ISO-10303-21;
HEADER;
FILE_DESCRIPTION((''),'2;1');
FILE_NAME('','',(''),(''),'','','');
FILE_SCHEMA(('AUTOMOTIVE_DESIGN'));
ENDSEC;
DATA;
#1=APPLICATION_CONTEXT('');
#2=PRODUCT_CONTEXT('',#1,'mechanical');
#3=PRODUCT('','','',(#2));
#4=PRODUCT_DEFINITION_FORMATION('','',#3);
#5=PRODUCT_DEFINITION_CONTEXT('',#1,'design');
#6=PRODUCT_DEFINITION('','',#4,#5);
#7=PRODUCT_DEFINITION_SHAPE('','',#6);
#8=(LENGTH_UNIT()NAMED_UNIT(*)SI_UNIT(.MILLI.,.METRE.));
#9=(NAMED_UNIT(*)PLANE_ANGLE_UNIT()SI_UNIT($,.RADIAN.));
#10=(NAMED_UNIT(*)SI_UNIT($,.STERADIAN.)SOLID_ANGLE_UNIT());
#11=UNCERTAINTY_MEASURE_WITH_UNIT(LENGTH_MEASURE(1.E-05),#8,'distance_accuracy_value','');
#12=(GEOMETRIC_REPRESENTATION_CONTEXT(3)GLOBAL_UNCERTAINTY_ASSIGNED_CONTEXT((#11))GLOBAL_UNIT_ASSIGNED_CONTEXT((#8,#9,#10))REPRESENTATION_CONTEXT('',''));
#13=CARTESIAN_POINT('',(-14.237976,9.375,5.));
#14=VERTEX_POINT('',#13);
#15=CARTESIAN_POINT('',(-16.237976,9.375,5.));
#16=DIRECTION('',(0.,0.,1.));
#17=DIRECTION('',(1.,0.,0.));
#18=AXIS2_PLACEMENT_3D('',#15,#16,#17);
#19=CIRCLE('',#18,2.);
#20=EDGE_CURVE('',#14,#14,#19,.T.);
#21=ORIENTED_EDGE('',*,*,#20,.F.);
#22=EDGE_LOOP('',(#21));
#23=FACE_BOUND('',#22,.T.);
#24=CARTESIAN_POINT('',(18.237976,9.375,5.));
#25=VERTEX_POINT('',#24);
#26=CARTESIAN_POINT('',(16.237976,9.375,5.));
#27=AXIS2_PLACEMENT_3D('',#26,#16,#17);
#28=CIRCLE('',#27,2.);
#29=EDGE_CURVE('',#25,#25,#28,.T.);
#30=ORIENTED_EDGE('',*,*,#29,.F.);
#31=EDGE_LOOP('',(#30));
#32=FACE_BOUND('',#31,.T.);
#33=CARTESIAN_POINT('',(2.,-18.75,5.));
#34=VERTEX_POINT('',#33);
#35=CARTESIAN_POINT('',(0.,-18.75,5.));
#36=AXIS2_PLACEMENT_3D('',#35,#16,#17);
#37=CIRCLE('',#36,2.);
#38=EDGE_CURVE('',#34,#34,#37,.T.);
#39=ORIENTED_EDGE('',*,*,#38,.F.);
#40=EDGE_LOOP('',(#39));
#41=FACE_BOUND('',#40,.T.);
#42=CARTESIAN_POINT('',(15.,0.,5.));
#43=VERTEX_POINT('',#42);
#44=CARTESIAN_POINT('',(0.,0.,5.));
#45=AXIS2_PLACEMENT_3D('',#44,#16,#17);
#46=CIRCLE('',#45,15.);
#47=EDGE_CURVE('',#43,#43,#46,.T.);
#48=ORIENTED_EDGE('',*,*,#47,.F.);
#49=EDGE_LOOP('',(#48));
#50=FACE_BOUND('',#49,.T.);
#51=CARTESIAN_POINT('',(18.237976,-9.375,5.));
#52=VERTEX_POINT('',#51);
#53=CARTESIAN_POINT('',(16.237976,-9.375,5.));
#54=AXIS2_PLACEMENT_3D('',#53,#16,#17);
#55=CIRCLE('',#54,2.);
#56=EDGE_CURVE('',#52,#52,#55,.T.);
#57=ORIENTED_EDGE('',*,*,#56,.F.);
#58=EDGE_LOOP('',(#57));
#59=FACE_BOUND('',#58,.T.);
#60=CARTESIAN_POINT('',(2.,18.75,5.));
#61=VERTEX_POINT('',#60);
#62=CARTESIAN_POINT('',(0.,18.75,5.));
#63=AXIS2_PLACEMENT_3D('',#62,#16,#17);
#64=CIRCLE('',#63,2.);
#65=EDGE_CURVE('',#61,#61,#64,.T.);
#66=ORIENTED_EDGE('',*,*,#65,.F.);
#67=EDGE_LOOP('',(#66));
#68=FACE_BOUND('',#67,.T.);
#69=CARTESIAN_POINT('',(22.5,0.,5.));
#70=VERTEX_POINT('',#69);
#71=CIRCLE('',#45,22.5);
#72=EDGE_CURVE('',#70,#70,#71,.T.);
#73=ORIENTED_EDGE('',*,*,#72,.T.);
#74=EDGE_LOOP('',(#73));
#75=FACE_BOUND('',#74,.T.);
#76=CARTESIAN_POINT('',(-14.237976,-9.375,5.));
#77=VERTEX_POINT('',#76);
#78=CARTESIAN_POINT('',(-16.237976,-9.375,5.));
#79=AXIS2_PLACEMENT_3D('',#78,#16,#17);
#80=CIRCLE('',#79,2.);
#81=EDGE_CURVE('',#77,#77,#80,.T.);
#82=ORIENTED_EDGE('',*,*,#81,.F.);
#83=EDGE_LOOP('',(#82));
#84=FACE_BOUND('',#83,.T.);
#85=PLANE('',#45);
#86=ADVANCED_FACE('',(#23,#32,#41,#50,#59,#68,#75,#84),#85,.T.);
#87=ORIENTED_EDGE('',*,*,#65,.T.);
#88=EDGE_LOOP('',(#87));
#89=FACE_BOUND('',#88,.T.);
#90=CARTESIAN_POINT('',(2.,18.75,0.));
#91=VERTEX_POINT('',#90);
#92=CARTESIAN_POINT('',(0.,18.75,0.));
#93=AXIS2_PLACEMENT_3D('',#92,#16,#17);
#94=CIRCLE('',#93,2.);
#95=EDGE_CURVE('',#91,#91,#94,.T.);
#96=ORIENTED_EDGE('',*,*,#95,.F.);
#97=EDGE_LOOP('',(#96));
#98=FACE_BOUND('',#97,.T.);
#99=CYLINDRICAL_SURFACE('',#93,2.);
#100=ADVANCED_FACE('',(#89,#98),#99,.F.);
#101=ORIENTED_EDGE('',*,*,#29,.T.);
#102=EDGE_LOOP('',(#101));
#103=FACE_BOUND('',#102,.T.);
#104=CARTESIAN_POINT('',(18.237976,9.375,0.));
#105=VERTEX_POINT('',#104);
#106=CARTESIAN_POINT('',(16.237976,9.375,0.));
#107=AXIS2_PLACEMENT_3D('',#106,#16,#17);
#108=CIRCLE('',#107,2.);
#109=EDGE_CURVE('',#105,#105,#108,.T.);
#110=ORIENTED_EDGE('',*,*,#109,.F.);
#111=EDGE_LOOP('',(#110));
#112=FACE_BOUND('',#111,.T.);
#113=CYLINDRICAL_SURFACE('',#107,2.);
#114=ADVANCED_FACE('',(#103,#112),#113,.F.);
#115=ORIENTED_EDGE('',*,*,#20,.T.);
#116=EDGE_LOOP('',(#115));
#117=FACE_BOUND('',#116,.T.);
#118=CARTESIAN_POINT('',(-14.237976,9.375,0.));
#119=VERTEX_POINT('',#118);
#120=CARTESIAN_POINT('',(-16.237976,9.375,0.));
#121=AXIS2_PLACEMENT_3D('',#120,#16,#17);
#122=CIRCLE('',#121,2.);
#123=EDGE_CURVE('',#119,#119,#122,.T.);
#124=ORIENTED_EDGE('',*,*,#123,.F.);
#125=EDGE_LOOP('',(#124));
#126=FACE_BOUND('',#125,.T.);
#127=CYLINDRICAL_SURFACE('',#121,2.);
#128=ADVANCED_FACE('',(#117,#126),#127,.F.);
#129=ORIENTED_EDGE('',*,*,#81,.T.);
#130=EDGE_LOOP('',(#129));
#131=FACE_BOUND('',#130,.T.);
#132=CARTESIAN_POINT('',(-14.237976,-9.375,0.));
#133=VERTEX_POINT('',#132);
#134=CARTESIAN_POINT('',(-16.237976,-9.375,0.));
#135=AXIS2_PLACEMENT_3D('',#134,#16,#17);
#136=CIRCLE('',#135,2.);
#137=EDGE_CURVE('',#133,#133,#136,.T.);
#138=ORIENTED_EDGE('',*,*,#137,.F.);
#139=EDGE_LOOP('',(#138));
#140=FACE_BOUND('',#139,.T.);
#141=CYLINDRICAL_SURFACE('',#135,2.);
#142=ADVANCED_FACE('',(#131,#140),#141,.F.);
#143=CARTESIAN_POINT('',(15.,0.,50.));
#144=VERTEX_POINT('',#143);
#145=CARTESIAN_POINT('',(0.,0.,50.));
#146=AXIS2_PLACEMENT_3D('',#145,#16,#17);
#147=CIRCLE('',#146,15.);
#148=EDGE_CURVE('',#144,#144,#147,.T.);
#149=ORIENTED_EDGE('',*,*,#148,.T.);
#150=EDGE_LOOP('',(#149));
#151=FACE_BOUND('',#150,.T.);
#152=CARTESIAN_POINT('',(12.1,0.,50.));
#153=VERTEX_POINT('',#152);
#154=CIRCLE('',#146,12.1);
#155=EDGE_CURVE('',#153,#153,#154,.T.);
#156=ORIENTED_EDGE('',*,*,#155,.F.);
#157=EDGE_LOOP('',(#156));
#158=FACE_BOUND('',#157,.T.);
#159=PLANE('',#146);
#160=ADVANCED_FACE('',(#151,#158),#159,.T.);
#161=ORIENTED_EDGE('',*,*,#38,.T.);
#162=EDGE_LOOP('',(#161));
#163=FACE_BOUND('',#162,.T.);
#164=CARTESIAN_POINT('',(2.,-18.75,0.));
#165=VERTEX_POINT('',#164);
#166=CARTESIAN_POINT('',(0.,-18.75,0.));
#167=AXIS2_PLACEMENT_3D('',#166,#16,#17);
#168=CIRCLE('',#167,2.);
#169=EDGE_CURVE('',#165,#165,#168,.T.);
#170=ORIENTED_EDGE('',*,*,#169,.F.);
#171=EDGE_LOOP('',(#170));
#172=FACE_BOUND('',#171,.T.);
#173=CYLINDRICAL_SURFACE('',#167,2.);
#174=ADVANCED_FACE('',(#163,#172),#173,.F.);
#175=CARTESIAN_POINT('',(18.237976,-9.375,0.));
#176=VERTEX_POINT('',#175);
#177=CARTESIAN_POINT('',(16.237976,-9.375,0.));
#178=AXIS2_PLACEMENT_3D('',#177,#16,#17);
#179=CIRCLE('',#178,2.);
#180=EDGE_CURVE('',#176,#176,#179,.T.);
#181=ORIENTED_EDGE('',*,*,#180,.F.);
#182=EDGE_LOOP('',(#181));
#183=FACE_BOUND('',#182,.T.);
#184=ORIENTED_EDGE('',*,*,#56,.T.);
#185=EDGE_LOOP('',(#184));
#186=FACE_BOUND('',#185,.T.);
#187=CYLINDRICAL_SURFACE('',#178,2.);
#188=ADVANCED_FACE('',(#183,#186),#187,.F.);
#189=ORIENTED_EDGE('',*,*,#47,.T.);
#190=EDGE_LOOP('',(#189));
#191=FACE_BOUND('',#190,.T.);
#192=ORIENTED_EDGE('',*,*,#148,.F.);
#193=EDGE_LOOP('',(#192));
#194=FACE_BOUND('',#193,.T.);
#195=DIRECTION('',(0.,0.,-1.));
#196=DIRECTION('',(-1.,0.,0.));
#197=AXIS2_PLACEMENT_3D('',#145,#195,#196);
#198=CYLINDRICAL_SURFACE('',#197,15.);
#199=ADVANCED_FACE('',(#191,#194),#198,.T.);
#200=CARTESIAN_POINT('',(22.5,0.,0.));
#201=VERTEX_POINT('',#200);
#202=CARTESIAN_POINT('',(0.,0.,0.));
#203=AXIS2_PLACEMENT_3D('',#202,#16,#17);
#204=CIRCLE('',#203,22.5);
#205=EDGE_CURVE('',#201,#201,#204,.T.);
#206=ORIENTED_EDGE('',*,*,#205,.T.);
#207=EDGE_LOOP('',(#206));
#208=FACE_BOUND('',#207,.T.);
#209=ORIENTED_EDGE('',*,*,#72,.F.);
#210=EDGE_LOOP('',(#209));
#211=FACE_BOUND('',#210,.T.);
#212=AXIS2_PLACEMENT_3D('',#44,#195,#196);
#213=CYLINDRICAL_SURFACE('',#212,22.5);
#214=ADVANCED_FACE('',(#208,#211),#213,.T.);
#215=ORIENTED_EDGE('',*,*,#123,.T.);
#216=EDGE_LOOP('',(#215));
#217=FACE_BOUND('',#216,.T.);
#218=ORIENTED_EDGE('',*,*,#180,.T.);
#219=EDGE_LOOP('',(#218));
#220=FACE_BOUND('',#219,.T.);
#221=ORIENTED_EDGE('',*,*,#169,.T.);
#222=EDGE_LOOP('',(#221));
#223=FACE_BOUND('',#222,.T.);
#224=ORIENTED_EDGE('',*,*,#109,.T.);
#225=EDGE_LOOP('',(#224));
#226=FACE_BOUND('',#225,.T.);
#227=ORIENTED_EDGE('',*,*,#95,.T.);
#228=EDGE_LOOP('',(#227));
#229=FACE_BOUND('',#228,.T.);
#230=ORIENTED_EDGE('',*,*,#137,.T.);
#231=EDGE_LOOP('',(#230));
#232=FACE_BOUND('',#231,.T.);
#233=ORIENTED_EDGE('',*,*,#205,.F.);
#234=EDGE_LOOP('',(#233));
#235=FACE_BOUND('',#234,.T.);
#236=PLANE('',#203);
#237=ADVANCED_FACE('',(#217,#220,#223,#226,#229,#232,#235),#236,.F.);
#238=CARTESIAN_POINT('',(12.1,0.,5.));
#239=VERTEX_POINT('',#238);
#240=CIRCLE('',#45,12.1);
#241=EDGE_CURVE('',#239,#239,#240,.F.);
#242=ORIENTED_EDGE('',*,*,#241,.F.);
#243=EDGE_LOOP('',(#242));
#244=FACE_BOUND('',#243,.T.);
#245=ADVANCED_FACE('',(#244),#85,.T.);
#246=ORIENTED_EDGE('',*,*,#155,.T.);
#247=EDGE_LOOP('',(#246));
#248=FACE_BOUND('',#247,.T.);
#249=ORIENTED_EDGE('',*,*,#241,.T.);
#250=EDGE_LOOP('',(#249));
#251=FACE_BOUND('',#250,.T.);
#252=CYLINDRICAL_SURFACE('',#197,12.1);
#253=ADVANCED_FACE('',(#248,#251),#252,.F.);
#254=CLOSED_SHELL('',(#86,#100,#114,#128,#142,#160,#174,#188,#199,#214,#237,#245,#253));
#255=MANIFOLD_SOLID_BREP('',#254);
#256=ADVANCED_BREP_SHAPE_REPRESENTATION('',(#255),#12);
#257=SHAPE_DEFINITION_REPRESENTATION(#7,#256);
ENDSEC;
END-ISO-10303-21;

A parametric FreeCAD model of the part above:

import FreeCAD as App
import Part
import Sketcher
from FreeCAD import Vector
Q = App.Units.Quantity

doc = App.newDocument("Part")
body = doc.addObject("PartDesign::Body", "Body")

sketch1 = doc.addObject("Sketcher::SketchObject", "Sketch")
body.addObject(sketch1)
sketch1.AttachmentSupport = (doc.XY_Plane, [""])
sketch1.MapMode = "FlatFace"
sketch1.addGeometry(Part.Circle(Vector(0, 0, 0), Vector(0, 0, 1), 22.5), False)
sketch1.addConstraint([
    Sketcher.Constraint("Coincident", 0, 3, -1, 1),
    Sketcher.Constraint("Diameter", 0, Q("45 mm")),
])
pad1 = doc.addObject("PartDesign::Pad", "Pad")
body.addObject(pad1)
pad1.Profile = sketch1
pad1.Length = 5

sketch2 = doc.addObject("Sketcher::SketchObject", "Sketch001")
body.addObject(sketch2)
sketch2.AttachmentSupport = (doc.XY_Plane, [""])
sketch2.MapMode = "FlatFace"
sketch2.AttachmentOffset = App.Placement(Vector(0, 0, 5), App.Rotation())
sketch2.addGeometry([
    Part.Circle(Vector(0, 0, 0), Vector(0, 0, 1), 15),
    Part.Circle(Vector(0, 0, 0), Vector(0, 0, 1), 12.1),
], False)
sketch2.addConstraint([
    Sketcher.Constraint("Coincident", 0, 3, -1, 1),
    Sketcher.Constraint("Coincident", 1, 3, -1, 1),
    Sketcher.Constraint("Diameter", 0, Q("30 mm")),
    Sketcher.Constraint("Diameter", 1, Q("24.2 mm")),
])
pad2 = doc.addObject("PartDesign::Pad", "Pad001")
body.addObject(pad2)
pad2.Profile = sketch2
pad2.Length = 45

sketch3 = doc.addObject("Sketcher::SketchObject", "Sketch002")
body.addObject(sketch3)
sketch3.AttachmentSupport = (doc.XY_Plane, [""])
sketch3.MapMode = "FlatFace"
sketch3.AttachmentOffset = App.Placement(Vector(0, 0, 5), App.Rotation())
sketch3.addGeometry([
    Part.Circle(Vector(0, 18.75, 0), Vector(0, 0, 1), 2),
    Part.Circle(Vector(16.237976, 9.375, 0), Vector(0, 0, 1), 2),
    Part.Circle(Vector(16.237976, -9.375, 0), Vector(0, 0, 1), 2),
    Part.Circle(Vector(0, -18.75, 0), Vector(0, 0, 1), 2),
    Part.Circle(Vector(-16.237976, -9.375, 0), Vector(0, 0, 1), 2),
    Part.Circle(Vector(-16.237976, 9.375, 0), Vector(0, 0, 1), 2),
], False)
sketch3.addConstraint([
    Sketcher.Constraint("Equal", 0, 1),
    Sketcher.Constraint("Equal", 1, 2),
    Sketcher.Constraint("Equal", 2, 3),
    Sketcher.Constraint("Equal", 3, 4),
    Sketcher.Constraint("Equal", 4, 5),
    Sketcher.Constraint("Symmetric", 0, 3, 3, 3, -1, 1),
    Sketcher.Constraint("Symmetric", 1, 3, 4, 3, -1, 1),
    Sketcher.Constraint("Symmetric", 2, 3, 5, 3, -1, 1),
    Sketcher.Constraint("Symmetric", 2, 3, 4, 3, -2),
    Sketcher.Constraint("PointOnObject", 0, 3, -2),
    Sketcher.Constraint("Diameter", 0, Q("4 mm")),
    Sketcher.Constraint("DistanceY", 3, 3, 0, 3, Q("37.5 mm")),
    Sketcher.Constraint("DistanceY", 2, 3, 1, 3, Q("18.75 mm")),
    Sketcher.Constraint("DistanceX", -1, 1, 1, 3, Q("16.237976 mm")),
])
pocket1 = doc.addObject("PartDesign::Pocket", "Pocket")
body.addObject(pocket1)
pocket1.Profile = sketch3
pocket1.Length = 5

doc.recompute()
